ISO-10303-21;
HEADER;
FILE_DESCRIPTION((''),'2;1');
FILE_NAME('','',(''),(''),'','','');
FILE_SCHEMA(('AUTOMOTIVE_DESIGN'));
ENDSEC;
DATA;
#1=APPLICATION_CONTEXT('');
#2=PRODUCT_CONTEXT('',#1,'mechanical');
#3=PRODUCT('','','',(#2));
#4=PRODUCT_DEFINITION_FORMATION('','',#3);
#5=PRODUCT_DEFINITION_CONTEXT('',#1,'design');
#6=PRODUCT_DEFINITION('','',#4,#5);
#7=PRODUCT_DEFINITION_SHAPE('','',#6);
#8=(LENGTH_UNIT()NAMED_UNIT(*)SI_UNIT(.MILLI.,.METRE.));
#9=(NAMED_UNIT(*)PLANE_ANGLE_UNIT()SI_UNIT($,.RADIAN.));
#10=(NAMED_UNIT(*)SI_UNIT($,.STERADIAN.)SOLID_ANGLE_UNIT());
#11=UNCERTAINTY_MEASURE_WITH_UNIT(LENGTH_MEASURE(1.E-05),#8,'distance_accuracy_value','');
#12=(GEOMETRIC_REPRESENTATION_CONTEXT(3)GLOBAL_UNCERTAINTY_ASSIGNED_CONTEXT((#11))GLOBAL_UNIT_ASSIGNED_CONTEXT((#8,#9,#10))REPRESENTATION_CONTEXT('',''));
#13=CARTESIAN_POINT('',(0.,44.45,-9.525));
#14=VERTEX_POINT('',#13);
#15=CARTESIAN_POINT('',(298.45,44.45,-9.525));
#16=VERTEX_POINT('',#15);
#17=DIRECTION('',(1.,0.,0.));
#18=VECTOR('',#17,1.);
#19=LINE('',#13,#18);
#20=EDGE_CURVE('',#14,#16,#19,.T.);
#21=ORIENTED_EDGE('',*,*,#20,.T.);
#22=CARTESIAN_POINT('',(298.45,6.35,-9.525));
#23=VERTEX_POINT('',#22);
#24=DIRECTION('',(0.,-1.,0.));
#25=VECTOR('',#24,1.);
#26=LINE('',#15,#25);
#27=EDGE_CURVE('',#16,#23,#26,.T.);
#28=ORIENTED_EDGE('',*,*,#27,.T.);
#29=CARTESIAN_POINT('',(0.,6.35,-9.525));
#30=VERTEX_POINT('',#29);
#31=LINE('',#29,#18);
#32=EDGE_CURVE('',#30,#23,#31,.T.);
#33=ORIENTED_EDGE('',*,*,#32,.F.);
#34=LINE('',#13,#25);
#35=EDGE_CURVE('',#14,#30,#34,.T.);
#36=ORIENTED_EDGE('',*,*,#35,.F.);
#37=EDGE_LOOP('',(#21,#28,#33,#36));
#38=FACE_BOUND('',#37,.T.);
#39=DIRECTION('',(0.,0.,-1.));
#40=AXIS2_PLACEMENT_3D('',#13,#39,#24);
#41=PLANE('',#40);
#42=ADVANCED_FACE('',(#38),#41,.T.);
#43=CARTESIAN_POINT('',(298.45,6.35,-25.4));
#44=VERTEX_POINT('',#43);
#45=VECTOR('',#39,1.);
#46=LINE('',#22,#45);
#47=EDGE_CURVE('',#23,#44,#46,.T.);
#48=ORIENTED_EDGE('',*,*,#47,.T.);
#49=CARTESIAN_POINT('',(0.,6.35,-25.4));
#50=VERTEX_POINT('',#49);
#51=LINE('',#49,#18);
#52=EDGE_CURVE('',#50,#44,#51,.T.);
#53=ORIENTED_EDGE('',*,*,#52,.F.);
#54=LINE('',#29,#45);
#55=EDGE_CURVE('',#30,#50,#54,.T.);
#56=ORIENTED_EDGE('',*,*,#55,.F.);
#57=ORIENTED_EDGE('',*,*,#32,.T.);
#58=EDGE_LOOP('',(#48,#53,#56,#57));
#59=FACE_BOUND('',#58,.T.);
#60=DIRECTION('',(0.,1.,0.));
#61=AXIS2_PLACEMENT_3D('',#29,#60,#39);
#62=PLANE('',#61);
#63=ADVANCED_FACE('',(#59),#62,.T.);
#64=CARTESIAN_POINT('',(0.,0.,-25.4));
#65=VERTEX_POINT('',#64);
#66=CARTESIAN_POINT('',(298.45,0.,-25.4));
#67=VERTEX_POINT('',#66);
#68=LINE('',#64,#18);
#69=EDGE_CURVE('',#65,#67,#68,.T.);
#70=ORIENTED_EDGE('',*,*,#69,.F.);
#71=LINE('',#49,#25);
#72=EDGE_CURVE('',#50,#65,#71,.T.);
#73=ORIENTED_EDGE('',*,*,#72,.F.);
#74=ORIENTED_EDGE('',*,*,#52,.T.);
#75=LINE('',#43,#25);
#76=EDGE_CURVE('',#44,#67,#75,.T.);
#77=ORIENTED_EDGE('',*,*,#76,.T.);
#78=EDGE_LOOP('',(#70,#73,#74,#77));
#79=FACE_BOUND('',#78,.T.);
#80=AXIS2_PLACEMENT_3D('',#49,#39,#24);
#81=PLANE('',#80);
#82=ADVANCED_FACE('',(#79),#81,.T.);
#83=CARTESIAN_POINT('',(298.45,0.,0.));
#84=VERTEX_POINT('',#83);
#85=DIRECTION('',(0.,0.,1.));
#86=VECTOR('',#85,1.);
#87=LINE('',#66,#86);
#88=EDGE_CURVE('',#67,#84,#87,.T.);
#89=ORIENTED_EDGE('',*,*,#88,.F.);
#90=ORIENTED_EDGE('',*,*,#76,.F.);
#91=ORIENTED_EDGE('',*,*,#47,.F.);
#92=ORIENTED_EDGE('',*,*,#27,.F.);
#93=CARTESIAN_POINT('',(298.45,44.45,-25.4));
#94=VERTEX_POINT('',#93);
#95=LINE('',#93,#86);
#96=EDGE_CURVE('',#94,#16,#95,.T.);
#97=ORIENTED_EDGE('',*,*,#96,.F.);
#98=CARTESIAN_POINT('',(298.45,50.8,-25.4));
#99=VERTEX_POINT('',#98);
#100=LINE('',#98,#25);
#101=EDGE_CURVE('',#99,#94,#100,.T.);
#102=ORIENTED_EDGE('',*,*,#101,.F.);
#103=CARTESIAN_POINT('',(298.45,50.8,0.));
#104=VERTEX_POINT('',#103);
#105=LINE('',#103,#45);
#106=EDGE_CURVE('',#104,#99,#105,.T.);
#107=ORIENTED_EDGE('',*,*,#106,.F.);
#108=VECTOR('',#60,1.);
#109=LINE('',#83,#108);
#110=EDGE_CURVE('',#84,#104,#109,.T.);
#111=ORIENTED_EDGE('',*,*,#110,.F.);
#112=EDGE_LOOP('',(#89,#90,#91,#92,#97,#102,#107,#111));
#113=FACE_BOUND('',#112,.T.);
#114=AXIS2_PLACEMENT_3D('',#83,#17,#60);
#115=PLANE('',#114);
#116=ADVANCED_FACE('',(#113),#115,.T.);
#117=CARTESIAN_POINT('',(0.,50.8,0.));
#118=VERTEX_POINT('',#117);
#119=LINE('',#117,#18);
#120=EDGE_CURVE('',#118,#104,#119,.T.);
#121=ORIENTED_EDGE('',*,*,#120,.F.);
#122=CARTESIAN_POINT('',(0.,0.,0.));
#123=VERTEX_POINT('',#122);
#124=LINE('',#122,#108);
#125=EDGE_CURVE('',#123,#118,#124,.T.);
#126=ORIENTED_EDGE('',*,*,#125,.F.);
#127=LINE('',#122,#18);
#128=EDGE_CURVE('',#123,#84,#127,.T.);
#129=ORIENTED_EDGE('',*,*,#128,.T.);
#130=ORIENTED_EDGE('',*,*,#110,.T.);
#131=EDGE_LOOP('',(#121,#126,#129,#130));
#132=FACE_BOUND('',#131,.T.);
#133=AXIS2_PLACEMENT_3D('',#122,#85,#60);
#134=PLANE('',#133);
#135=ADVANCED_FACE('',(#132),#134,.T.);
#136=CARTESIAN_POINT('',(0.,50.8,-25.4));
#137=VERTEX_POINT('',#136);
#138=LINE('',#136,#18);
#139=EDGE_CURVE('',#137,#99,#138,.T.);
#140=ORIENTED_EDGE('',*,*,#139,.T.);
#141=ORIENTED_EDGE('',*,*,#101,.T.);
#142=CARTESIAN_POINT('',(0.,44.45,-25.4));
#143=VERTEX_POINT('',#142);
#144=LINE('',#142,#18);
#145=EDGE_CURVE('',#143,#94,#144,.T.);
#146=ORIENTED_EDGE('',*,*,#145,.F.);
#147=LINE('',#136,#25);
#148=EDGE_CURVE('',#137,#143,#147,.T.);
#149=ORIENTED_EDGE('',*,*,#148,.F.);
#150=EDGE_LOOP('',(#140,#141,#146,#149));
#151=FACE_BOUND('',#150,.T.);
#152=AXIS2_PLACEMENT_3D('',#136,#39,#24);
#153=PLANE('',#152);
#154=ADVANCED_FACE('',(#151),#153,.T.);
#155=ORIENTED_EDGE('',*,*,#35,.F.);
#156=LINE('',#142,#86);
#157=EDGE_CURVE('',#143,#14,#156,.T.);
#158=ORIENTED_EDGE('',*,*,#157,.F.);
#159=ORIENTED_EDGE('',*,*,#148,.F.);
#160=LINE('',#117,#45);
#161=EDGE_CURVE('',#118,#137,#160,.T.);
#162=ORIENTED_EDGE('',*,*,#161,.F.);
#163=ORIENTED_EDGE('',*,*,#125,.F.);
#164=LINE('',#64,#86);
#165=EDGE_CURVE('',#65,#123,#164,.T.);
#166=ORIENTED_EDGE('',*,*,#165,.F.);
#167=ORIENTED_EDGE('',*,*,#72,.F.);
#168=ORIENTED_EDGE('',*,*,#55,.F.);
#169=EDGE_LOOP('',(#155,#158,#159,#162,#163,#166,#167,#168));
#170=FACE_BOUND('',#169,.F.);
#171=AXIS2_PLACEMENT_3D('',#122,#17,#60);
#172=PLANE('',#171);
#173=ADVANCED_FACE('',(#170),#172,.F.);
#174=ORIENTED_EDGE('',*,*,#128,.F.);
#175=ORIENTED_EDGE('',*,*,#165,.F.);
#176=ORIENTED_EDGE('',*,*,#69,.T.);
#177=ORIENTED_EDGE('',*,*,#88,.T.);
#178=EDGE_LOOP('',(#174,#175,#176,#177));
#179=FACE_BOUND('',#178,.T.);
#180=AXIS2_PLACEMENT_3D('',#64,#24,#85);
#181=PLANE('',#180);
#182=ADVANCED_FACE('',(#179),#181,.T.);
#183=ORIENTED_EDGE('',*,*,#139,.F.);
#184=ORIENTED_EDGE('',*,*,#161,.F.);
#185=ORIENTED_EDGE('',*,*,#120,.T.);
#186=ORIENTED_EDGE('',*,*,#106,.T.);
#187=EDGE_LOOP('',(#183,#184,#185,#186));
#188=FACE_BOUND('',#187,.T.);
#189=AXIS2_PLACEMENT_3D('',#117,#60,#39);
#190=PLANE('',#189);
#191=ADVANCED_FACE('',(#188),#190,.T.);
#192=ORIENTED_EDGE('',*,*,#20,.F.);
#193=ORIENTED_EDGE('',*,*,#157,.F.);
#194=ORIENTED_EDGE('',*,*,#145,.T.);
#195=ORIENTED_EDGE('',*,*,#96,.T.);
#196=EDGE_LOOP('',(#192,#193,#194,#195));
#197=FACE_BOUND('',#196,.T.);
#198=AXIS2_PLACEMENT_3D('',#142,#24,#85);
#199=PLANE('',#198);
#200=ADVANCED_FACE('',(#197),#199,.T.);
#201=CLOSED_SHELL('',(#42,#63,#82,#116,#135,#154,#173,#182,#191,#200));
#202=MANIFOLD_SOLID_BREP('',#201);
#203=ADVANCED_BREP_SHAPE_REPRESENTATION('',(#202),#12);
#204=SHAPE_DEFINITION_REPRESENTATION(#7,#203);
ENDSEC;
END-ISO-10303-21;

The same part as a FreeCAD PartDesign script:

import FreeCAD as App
import Part
import Sketcher
from FreeCAD import Vector
Q = App.Units.Quantity

doc = App.newDocument("Part")
body = doc.addObject("PartDesign::Body", "Body")

# Sketch on YZ plane
sketch1 = body.newObject("Sketcher::SketchObject", "Sketch")
sketch1.AttachmentSupport = (doc.getObject("YZ_Plane"), [""])
sketch1.MapMode = "FlatFace"
sketch1.addGeometry([
    Part.LineSegment(Vector(51, 0, 0), Vector(0, 0, 0)),  # 0
    Part.LineSegment(Vector(0, 0, 0), Vector(0, -25, 0)),  # 1
    Part.LineSegment(Vector(0, -25, 0), Vector(6, -25, 0)),  # 2
    Part.LineSegment(Vector(6, -25, 0), Vector(6, -10, 0)),  # 3
    Part.LineSegment(Vector(6, -10, 0), Vector(44, -10, 0)),  # 4
    Part.LineSegment(Vector(44, -10, 0), Vector(44, -25, 0)),  # 5
    Part.LineSegment(Vector(44, -25, 0), Vector(51, -25, 0)),  # 6
    Part.LineSegment(Vector(51, -25, 0), Vector(51, 0, 0)),  # 7
], False)
sketch1.addConstraint([
    Sketcher.Constraint("Coincident", 0, 2, 1, 1),
    Sketcher.Constraint("Coincident", 1, 2, 2, 1),
    Sketcher.Constraint("Coincident", 2, 2, 3, 1),
    Sketcher.Constraint("Coincident", 3, 2, 4, 1),
    Sketcher.Constraint("Coincident", 4, 2, 5, 1),
    Sketcher.Constraint("Coincident", 5, 2, 6, 1),
    Sketcher.Constraint("Coincident", 6, 2, 7, 1),
    Sketcher.Constraint("Coincident", 7, 2, 0, 1),
    Sketcher.Constraint("Horizontal", 0),
    Sketcher.Constraint("Vertical", 1),
    Sketcher.Constraint("Horizontal", 2),
    Sketcher.Constraint("Vertical", 3),
    Sketcher.Constraint("Horizontal", 4),
    Sketcher.Constraint("Vertical", 5),
    Sketcher.Constraint("Horizontal", 6),
    Sketcher.Constraint("Vertical", 7),
    Sketcher.Constraint("Coincident", 0, 2, -1, 1),
    Sketcher.Constraint("Horizontal", 2, 2, 5, 2),
    Sketcher.Constraint("Equal", 2, 6),
    Sketcher.Constraint("DistanceX", 0, 2, 0, 1, Q("2 in")),
    Sketcher.Constraint("DistanceY", 1, 2, 1, 1, Q("1 in")),
    Sketcher.Constraint("DistanceX", 2, 1, 2, 2, Q("0.25 in")),
    Sketcher.Constraint("DistanceY", 3, 1, 3, 2, Q("0.625 in")),
])
pad1 = body.newObject("PartDesign::Pad", "Pad")
pad1.Profile = sketch1
pad1.Length = Q("11.75 in")

doc.recompute()
